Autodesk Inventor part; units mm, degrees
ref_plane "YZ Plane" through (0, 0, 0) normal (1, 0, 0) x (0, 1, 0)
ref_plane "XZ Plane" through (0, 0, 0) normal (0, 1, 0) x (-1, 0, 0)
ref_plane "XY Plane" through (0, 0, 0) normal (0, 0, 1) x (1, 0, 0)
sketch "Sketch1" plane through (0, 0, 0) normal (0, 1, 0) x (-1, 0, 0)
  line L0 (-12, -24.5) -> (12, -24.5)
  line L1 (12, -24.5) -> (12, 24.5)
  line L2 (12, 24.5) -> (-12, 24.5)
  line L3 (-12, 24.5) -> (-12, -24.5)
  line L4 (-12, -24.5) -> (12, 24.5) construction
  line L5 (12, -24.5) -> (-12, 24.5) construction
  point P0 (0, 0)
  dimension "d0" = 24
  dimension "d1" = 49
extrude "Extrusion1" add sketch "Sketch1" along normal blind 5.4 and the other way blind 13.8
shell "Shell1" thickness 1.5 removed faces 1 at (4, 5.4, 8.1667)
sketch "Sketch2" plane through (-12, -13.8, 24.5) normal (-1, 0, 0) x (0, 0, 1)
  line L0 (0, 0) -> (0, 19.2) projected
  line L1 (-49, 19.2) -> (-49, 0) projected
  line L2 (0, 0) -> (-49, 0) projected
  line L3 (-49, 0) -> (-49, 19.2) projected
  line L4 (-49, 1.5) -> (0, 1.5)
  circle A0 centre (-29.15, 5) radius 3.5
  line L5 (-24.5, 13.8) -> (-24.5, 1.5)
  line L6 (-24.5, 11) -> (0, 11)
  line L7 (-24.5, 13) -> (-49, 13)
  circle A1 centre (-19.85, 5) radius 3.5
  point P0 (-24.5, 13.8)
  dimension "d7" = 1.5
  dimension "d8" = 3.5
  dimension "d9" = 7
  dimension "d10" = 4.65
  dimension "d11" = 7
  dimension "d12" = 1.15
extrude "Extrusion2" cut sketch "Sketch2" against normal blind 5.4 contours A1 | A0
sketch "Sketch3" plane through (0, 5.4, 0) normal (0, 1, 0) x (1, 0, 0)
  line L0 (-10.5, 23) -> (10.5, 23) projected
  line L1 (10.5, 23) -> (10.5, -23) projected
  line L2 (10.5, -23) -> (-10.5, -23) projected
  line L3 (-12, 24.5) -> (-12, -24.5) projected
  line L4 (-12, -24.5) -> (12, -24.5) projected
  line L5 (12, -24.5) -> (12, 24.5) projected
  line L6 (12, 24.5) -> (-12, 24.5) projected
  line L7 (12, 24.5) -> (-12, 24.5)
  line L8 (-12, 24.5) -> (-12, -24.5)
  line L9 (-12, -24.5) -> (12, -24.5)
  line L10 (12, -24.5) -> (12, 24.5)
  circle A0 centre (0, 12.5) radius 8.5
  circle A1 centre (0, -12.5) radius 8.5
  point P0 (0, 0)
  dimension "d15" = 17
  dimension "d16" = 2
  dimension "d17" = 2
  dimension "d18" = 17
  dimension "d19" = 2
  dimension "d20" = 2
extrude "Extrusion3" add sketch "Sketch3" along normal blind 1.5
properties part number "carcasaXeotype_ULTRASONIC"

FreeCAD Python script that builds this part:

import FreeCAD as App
import Part
import Sketcher

V = App.Vector


def faces_at(feature, points):
    """Names of the faces that lie closest to the given points."""
    faces = feature.Shape.Faces
    near = lambda p: min(range(len(faces)), key=lambda i: faces[i].distToShape(Part.Vertex(*p))[0])
    return sorted({f"Face{near(p) + 1}" for p in points})

doc = App.newDocument("Part")
body = doc.addObject("PartDesign::Body", "Body")

sketch1 = doc.addObject("Sketcher::SketchObject", "Sketch")
body.addObject(sketch1)
sketch1.AttachmentSupport = (doc.XZ_Plane, [""])
sketch1.MapMode = "FlatFace"
sketch1.addGeometry([
    Part.LineSegment(V(12, 24, 0), V(12, -24, 0)),
    Part.LineSegment(V(12, -24, 0), V(-12, -24, 0)),
    Part.LineSegment(V(-12, -24, 0), V(-12, 24, 0)),
    Part.LineSegment(V(-12, 24, 0), V(12, 24, 0)),
], False)
sketch1.addConstraint([
    Sketcher.Constraint("Coincident", 0, 2, 1, 1),
    Sketcher.Constraint("Coincident", 1, 2, 2, 1),
    Sketcher.Constraint("Coincident", 2, 2, 3, 1),
    Sketcher.Constraint("Coincident", 3, 2, 0, 1),
    Sketcher.Constraint("Vertical", 0),
    Sketcher.Constraint("Horizontal", 1),
    Sketcher.Constraint("Vertical", 2),
    Sketcher.Constraint("Horizontal", 3),
    Sketcher.Constraint("Symmetric", 0, 2, 2, 2, -1, 1),
    Sketcher.Constraint("DistanceX", 1, 2, 1, 1, 24.0),
    Sketcher.Constraint("DistanceY", 0, 2, 0, 1, 49.0),
])
pad1 = doc.addObject("PartDesign::Pad", "Pad")
body.addObject(pad1)
pad1.Profile = sketch1
pad1.Type = "TwoLengths"
pad1.Length = 5.4
pad1.Length2 = 13.8
pad1.Reversed = True
doc.recompute()

thickness = doc.addObject("PartDesign::Thickness", "Thickness")
body.addObject(thickness)
thickness.Base = (pad1, faces_at(pad1, [(4, 5.4, 8.167)]))
thickness.Value = 1.5
thickness.Reversed = True
thickness.Join = "Intersection"

sketch2 = doc.addObject("Sketcher::SketchObject", "Sketch001")
body.addObject(sketch2)
sketch2.AttachmentSupport = (doc.YZ_Plane, [""])
sketch2.MapMode = "FlatFace"
sketch2.AttachmentOffset = App.Placement(V(0, 0, -12), App.Rotation())
sketch2.addGeometry([
    Part.Circle(V(-8.8, 4.7, 0), V(0, 0, 1), 3.5),
    Part.Circle(V(-8.8, -4.7, 0), V(0, 0, 1), 3.5),
], False)
sketch2.addConstraint([
    Sketcher.Constraint("Equal", 0, 1),
    Sketcher.Constraint("Symmetric", 0, 3, 1, 3, -1),
    Sketcher.Constraint("Diameter", 0, 7.0),
    Sketcher.Constraint("DistanceY", -1, 1, 0, 3, 4.65),
    Sketcher.Constraint("DistanceX", 0, 3, -1, 1, 8.8),
])
pocket1 = doc.addObject("PartDesign::Pocket", "Pocket")
body.addObject(pocket1)
pocket1.Profile = sketch2
pocket1.Length = 5.4
pocket1.Reversed = True

sketch3 = doc.addObject("Sketcher::SketchObject", "Sketch002")
body.addObject(sketch3)
sketch3.AttachmentSupport = (doc.XZ_Plane, [""])
sketch3.MapMode = "FlatFace"
sketch3.AttachmentOffset = App.Placement(V(0, 0, -5.4), App.Rotation())
sketch3.addGeometry([
    Part.LineSegment(V(12, -24, 0), V(-12, -24, 0)),
    Part.LineSegment(V(-12, -24, 0), V(-12, 24, 0)),
    Part.LineSegment(V(-12, 24, 0), V(12, 24, 0)),
    Part.LineSegment(V(12, 24, 0), V(12, -24, 0)),
    Part.Circle(V(0, 12, 0), V(0, 0, 1), 8),
    Part.Circle(V(0, -12, 0), V(0, 0, 1), 8),
], False)
sketch3.addConstraint([
    Sketcher.Constraint("Coincident", 0, 2, 1, 1),
    Sketcher.Constraint("Coincident", 1, 2, 2, 1),
    Sketcher.Constraint("Coincident", 2, 2, 3, 1),
    Sketcher.Constraint("Coincident", 3, 2, 0, 1),
    Sketcher.Constraint("Horizontal", 0),
    Sketcher.Constraint("Vertical", 1),
    Sketcher.Constraint("Horizontal", 2),
    Sketcher.Constraint("Vertical", 3),
    Sketcher.Constraint("Equal", 4, 5),
    Sketcher.Constraint("Symmetric", 4, 3, 5, 3, -1, 1),
    Sketcher.Constraint("Symmetric", 0, 2, 2, 2, -1, 1),
    Sketcher.Constraint("PointOnObject", 4, 3, -2),
    Sketcher.Constraint("Diameter", 4, 17.0),
    Sketcher.Constraint("DistanceX", 0, 2, 0, 1, 24.0),
    Sketcher.Constraint("DistanceY", 1, 1, 1, 2, 49.0),
    Sketcher.Constraint("DistanceY", 5, 3, 4, 3, 25.0),
])
pad2 = doc.addObject("PartDesign::Pad", "Pad001")
body.addObject(pad2)
pad2.Profile = sketch3
pad2.Length = 1.5
pad2.Reversed = True

doc.recompute()
